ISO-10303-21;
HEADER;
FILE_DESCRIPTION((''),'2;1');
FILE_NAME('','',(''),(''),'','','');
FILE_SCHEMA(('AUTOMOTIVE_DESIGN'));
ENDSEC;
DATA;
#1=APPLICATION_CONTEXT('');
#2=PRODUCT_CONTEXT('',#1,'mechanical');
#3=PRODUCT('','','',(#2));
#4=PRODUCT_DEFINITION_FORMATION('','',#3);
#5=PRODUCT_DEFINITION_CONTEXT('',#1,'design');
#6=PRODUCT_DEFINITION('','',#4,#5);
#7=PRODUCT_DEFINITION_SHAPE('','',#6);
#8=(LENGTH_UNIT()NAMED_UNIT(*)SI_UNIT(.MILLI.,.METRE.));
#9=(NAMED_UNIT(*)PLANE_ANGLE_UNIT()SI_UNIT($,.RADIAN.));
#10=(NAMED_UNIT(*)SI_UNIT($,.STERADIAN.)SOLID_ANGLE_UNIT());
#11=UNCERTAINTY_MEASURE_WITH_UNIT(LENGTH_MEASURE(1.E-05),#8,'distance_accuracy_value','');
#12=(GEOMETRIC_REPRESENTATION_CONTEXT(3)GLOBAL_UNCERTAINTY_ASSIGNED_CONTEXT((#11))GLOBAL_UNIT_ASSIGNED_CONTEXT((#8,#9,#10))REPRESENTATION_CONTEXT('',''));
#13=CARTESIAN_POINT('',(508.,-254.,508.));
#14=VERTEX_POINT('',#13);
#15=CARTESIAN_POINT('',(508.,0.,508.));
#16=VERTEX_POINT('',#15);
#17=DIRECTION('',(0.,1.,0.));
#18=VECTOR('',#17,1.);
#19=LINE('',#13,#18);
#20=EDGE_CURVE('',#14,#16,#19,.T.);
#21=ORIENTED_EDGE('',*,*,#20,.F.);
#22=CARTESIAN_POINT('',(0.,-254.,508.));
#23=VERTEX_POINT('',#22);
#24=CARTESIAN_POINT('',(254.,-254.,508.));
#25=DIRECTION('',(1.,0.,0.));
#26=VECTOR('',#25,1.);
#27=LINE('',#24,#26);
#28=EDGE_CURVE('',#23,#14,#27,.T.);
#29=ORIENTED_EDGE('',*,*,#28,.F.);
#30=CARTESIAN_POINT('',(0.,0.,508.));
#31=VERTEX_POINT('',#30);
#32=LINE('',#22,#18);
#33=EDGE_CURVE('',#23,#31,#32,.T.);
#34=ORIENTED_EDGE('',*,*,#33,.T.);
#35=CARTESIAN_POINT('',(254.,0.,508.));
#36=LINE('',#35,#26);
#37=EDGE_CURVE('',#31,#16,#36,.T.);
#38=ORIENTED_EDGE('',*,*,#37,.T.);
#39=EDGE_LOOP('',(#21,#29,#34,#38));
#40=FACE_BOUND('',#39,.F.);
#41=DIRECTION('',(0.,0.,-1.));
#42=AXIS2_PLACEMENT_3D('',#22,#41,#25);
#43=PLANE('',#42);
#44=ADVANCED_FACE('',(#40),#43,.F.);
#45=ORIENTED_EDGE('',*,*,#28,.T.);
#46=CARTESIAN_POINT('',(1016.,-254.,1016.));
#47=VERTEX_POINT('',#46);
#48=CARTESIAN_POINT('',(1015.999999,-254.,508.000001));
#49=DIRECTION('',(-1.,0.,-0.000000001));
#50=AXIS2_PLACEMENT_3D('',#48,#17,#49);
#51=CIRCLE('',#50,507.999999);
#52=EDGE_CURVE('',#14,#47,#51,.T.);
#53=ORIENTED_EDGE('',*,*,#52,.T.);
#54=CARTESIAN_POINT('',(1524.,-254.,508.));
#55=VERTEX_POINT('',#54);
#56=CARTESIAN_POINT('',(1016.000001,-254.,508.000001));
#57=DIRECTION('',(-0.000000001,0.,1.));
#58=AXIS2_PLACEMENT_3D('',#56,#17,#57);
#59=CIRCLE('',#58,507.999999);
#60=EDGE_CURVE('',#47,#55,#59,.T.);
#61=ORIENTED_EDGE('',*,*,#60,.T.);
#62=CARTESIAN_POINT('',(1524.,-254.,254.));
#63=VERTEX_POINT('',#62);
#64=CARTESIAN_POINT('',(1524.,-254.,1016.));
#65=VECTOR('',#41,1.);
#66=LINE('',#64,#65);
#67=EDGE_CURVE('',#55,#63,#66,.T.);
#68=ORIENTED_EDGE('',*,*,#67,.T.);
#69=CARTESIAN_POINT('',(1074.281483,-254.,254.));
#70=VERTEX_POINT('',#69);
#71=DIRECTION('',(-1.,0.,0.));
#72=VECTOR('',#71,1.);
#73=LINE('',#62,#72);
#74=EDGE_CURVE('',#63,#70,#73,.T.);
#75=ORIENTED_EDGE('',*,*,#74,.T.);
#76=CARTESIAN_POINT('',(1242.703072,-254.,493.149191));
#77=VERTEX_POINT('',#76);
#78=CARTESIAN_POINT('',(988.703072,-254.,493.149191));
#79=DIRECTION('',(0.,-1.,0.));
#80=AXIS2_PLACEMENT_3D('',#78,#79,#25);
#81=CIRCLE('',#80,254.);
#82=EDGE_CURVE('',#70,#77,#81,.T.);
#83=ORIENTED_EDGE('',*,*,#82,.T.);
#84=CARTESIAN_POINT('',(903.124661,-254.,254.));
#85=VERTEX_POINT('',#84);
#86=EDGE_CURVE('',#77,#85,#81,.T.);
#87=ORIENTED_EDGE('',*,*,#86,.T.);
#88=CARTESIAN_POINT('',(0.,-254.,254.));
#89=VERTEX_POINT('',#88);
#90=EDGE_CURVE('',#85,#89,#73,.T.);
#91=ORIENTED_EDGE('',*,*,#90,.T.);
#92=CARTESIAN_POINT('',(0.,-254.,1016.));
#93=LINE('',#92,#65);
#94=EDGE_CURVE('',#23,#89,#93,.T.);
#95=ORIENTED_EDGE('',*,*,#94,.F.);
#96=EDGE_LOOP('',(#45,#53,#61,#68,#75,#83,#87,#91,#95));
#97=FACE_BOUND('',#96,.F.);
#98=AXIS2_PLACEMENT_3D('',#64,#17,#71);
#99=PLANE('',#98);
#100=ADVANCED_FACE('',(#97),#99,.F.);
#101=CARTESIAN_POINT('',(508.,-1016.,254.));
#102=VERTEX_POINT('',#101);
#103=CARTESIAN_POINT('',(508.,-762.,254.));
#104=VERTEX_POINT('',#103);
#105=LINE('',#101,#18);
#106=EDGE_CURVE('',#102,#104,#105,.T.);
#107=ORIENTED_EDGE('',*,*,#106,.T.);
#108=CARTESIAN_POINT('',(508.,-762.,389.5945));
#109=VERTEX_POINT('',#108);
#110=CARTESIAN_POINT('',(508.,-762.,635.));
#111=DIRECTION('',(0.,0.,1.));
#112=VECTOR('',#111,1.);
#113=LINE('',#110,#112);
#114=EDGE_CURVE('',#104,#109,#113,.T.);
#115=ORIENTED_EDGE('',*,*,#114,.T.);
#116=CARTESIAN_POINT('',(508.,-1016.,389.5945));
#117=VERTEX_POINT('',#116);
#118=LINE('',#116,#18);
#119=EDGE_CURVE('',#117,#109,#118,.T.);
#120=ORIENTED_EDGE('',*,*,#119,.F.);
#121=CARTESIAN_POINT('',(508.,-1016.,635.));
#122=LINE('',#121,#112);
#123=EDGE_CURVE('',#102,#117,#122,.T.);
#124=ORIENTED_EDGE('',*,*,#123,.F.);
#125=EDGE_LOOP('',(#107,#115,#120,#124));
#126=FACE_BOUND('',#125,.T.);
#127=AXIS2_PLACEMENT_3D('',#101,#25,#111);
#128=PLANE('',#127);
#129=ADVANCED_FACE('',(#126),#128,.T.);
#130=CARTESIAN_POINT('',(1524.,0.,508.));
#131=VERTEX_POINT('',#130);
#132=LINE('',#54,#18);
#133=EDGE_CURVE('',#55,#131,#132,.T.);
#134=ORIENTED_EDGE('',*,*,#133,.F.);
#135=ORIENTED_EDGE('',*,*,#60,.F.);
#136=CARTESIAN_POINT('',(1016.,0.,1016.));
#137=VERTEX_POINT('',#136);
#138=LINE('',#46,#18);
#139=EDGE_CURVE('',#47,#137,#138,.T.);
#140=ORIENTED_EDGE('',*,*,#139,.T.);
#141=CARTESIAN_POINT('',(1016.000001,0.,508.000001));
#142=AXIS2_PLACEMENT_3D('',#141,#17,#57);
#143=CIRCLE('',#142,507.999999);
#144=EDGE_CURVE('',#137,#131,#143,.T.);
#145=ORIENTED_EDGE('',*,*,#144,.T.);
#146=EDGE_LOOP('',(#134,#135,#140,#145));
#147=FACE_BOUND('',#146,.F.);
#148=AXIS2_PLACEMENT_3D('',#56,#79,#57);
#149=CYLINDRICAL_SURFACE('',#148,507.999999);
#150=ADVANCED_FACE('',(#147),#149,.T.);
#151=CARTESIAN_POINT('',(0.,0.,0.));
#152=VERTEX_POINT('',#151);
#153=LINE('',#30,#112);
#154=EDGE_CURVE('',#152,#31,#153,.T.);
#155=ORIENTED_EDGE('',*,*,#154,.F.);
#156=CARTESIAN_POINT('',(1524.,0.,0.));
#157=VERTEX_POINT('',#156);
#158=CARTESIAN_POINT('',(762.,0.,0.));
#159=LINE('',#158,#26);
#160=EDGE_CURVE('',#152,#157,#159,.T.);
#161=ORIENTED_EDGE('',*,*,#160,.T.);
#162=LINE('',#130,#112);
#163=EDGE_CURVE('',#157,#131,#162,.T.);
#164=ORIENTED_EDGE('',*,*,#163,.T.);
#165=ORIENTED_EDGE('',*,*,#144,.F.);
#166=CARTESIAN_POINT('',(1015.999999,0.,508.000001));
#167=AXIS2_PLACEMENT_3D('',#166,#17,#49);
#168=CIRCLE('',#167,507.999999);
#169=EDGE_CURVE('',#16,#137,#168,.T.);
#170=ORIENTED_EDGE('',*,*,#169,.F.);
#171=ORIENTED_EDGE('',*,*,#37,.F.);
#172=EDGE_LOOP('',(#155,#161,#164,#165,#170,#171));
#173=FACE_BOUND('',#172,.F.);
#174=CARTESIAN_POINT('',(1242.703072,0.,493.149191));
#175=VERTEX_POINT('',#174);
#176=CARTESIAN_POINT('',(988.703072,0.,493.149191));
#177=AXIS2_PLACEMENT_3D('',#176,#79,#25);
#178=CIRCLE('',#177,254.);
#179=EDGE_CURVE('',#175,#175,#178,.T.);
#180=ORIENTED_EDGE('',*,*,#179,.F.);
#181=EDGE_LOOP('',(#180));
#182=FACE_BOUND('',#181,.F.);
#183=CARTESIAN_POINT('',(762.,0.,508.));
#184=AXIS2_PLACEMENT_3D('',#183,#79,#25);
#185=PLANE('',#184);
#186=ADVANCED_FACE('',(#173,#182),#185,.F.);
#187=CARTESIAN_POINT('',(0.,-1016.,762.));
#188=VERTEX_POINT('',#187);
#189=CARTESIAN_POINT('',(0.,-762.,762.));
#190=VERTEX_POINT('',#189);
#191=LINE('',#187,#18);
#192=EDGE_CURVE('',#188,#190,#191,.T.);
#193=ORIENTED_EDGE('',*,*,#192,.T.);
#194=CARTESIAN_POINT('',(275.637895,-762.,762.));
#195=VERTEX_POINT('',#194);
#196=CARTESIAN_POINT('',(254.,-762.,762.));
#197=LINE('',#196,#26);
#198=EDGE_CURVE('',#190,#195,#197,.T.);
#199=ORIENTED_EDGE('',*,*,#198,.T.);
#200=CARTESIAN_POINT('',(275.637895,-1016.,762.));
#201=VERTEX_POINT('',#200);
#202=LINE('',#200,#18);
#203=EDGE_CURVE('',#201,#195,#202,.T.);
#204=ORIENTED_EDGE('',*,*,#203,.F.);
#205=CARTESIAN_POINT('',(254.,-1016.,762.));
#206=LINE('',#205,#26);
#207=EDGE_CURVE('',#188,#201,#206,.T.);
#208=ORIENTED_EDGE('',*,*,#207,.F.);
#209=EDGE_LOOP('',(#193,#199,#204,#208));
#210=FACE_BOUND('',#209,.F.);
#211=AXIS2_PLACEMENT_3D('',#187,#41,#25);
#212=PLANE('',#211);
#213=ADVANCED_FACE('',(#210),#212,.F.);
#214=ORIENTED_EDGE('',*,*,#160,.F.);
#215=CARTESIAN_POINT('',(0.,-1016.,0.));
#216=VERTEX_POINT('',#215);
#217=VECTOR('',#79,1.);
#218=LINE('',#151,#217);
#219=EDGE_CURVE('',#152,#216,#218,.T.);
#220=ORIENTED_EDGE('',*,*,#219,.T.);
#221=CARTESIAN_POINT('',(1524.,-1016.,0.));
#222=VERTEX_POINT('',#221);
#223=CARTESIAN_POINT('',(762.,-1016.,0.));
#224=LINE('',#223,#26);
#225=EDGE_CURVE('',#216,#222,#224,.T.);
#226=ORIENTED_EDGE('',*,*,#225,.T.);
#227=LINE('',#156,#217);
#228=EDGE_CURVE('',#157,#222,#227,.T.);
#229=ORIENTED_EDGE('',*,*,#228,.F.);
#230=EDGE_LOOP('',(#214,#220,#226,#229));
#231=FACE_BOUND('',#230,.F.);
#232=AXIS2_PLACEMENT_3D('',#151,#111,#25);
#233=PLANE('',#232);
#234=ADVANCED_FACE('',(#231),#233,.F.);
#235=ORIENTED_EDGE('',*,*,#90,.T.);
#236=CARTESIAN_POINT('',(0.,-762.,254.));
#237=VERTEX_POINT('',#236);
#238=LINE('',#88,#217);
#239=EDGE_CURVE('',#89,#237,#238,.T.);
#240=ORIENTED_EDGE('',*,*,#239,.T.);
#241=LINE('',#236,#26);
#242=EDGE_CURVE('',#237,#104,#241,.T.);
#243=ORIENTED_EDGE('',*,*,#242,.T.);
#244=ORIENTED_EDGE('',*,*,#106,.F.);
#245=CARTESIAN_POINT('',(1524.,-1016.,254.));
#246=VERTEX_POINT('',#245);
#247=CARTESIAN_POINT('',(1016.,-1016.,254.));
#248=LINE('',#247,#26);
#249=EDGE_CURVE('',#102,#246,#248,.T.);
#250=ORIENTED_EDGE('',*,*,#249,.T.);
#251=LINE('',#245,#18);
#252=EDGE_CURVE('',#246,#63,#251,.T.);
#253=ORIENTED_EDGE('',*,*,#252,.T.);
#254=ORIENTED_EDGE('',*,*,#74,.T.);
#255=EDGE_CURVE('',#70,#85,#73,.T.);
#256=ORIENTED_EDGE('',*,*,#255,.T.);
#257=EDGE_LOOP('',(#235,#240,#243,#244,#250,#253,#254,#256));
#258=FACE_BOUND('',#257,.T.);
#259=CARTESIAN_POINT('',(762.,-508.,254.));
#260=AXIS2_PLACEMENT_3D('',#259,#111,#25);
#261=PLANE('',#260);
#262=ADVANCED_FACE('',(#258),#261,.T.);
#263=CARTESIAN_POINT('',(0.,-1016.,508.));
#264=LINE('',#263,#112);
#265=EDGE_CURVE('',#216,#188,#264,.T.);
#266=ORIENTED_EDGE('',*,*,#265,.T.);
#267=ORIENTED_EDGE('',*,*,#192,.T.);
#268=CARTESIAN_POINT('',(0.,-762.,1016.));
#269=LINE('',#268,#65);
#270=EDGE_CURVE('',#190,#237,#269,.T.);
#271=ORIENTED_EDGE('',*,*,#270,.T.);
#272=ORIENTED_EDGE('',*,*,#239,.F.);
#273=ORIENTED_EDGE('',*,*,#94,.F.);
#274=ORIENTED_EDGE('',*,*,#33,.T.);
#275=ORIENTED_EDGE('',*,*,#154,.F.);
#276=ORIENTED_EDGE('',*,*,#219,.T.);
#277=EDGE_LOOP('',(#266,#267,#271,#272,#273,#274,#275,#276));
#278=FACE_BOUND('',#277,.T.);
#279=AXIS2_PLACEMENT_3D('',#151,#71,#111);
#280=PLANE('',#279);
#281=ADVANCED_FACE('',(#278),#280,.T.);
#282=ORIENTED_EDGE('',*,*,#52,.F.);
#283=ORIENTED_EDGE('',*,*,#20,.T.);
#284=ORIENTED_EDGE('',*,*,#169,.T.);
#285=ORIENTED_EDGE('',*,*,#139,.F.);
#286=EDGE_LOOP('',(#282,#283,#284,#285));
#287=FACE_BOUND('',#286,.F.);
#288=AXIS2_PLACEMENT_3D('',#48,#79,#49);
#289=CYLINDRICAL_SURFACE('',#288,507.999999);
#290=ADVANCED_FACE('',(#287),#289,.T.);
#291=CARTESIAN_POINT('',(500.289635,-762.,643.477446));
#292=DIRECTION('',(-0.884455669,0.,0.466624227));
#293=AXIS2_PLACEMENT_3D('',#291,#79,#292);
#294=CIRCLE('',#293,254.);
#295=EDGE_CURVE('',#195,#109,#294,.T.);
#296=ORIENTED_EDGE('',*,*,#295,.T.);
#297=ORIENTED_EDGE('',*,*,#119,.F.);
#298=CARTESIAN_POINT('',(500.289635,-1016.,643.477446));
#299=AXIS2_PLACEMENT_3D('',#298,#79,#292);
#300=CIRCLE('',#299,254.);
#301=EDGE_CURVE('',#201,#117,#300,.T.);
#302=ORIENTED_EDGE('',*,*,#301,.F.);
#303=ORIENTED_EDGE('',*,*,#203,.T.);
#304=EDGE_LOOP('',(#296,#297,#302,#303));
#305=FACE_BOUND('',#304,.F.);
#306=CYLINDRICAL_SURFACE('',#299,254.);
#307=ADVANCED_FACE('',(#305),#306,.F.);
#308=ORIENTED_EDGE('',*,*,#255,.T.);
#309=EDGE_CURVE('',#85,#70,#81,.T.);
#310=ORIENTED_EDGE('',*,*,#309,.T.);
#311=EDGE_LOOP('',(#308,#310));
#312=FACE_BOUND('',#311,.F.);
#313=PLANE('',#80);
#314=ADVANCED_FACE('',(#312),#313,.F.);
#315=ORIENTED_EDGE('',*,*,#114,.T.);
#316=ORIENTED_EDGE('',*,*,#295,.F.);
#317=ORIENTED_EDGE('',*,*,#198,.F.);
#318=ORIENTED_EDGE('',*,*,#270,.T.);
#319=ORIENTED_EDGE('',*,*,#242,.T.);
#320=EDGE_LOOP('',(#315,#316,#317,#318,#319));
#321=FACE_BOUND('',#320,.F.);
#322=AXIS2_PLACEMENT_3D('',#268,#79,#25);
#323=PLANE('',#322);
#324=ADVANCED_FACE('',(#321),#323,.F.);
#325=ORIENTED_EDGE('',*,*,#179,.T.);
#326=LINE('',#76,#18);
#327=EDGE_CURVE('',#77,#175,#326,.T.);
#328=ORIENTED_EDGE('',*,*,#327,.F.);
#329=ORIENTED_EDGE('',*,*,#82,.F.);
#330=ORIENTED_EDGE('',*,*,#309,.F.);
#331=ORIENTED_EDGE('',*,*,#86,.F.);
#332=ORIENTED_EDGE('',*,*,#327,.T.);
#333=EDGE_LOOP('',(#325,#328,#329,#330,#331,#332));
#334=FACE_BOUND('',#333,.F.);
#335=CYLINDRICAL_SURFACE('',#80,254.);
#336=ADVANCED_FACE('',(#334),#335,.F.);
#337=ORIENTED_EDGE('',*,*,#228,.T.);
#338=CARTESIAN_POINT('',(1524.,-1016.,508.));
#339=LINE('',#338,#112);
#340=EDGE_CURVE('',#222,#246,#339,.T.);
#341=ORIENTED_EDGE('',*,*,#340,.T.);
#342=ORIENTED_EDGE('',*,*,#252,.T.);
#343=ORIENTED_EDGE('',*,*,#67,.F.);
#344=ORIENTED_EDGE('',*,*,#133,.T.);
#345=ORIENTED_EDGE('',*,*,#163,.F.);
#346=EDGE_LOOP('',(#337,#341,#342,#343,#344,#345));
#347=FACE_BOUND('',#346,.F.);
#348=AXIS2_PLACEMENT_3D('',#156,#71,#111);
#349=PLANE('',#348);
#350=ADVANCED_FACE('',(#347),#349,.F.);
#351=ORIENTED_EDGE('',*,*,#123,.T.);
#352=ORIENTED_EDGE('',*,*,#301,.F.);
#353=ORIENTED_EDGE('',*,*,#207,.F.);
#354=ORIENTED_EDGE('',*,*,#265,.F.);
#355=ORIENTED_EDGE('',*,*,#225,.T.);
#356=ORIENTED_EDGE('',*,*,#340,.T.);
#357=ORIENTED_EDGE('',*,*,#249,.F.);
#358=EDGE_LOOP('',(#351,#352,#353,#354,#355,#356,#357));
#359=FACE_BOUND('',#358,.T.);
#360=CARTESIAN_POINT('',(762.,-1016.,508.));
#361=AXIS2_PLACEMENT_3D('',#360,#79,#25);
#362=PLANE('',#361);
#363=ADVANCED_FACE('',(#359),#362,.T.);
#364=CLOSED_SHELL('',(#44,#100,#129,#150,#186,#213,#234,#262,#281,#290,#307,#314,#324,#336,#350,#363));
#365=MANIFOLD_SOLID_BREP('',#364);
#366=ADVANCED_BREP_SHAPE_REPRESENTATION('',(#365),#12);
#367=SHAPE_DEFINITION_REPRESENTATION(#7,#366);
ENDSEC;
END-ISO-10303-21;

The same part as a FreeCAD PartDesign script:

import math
import FreeCAD as App
import Part
import Sketcher
Q = App.Units.Quantity


def add_polygon(sketch, points):
    """Adds a closed chain of lines whose ends are joined by coincident constraints."""
    first, n = sketch.GeometryCount, len(points)
    for a, b in zip(points, points[1:] + points[:1]):
        sketch.addGeometry(Part.LineSegment(App.Vector(*a, 0), App.Vector(*b, 0)), False)
    for i in range(n):
        sketch.addConstraint(Sketcher.Constraint("Coincident", first + i, 2, first + (i + 1) % n, 1))

doc = App.newDocument("Part")
body = doc.addObject("PartDesign::Body", "Body")

# Sketch on XZ plane
sketch1 = body.newObject("Sketcher::SketchObject", "Sketch")
sketch1.AttachmentSupport = (doc.getObject("XZ_Plane"), [""])
sketch1.MapMode = "FlatFace"
add_polygon(sketch1, [(0, 1016), (0, 0), (1524, 0), (1524, 1016)])  # lines 0-3
sketch1.addConstraint([
    Sketcher.Constraint("Vertical", 0),
    Sketcher.Constraint("Horizontal", 1),
    Sketcher.Constraint("Vertical", 2),
    Sketcher.Constraint("Horizontal", 3),
    Sketcher.Constraint("Coincident", 0, 2, -1, 1),
    Sketcher.Constraint("DistanceX", 1, 1, 1, 2, Q("60 in")),
    Sketcher.Constraint("DistanceY", 0, 2, 0, 1, Q("40 in")),
])
pad1 = body.newObject("PartDesign::Pad", "Pad")
pad1.Profile = sketch1
pad1.Length = Q("40 in")

# Sketch on XZ plane
sketch2 = body.newObject("Sketcher::SketchObject", "Sketch001")
sketch2.AttachmentSupport = (doc.getObject("XZ_Plane"), [""])
sketch2.MapMode = "FlatFace"
sketch2.AttachmentOffset = App.Placement(App.Vector(0, 0, 40 * 25.4), App.Rotation())
add_polygon(sketch2, [(508, 1016), (508, 254), (1524, 254), (1524, 1016)])  # lines 0-3
sketch2.addConstraint([
    Sketcher.Constraint("Vertical", 0),
    Sketcher.Constraint("Horizontal", 1),
    Sketcher.Constraint("Vertical", 2),
    Sketcher.Constraint("Horizontal", 3),
    Sketcher.Constraint("DistanceX", 1, 1, 1, 2, Q("40 in")),
    Sketcher.Constraint("DistanceY", 0, 2, 0, 1, Q("30 in")),
    Sketcher.Constraint("DistanceX", -1, 1, 0, 2, Q("20 in")),
    Sketcher.Constraint("DistanceY", -1, 1, 0, 2, Q("10 in")),
])
pocket1 = body.newObject("PartDesign::Pocket", "Pocket")
pocket1.Profile = sketch2
pocket1.Length = Q("10 in")

# Sketch on XY plane
sketch3 = body.newObject("Sketcher::SketchObject", "Sketch002")
sketch3.AttachmentSupport = (doc.getObject("XY_Plane"), [""])
sketch3.MapMode = "FlatFace"
sketch3.AttachmentOffset = App.Placement(App.Vector(0, 0, 40 * 25.4), App.Rotation())
add_polygon(sketch3, [(0, -762), (1524, -762), (1524, -254), (0, -254)])  # lines 0-3
sketch3.addConstraint([
    Sketcher.Constraint("Horizontal", 0),
    Sketcher.Constraint("Vertical", 1),
    Sketcher.Constraint("Horizontal", 2),
    Sketcher.Constraint("Vertical", 3),
    Sketcher.Constraint("PointOnObject", 2, 2, -2),
    Sketcher.Constraint("DistanceX", 0, 1, 0, 2, Q("60 in")),
    Sketcher.Constraint("DistanceY", 1, 1, 1, 2, Q("20 in")),
    Sketcher.Constraint("DistanceY", 0, 2, -1, 1, Q("30 in")),
])
pocket2 = body.newObject("PartDesign::Pocket", "Pocket001")
pocket2.Profile = sketch3
pocket2.Length = Q("30 in")

# Sketch on XZ plane
sketch4 = body.newObject("Sketcher::SketchObject", "Sketch003")
sketch4.AttachmentSupport = (doc.getObject("XZ_Plane"), [""])
sketch4.MapMode = "FlatFace"
sketch4.AttachmentOffset = App.Placement(App.Vector(0, 0, 40 * 25.4), App.Rotation())
add_polygon(sketch4, [(0, 1016), (0, 762), (508, 762), (508, 1016)])  # lines 0-3
sketch4.addConstraint([
    Sketcher.Constraint("Vertical", 0),
    Sketcher.Constraint("Horizontal", 1),
    Sketcher.Constraint("Vertical", 2),
    Sketcher.Constraint("Horizontal", 3),
    Sketcher.Constraint("PointOnObject", 0, 2, -2),
    Sketcher.Constraint("DistanceX", 1, 1, 1, 2, Q("20 in")),
    Sketcher.Constraint("DistanceY", 0, 2, 0, 1, Q("10 in")),
    Sketcher.Constraint("DistanceY", -1, 1, 0, 2, Q("30 in")),
])
pocket3 = body.newObject("PartDesign::Pocket", "Pocket002")
pocket3.Profile = sketch4
pocket3.Length = Q("10 in")

# Sketch on XZ plane
sketch5 = body.newObject("Sketcher::SketchObject", "Sketch004")
sketch5.AttachmentSupport = (doc.getObject("XZ_Plane"), [""])
sketch5.MapMode = "FlatFace"
sketch5.AttachmentOffset = App.Placement(App.Vector(0, 0, 10 * 25.4), App.Rotation())
add_polygon(sketch5, [(0, 1016), (0, 508), (508, 508), (508, 1016)])  # lines 0-3
sketch5.addConstraint([
    Sketcher.Constraint("Vertical", 0),
    Sketcher.Constraint("Horizontal", 1),
    Sketcher.Constraint("Vertical", 2),
    Sketcher.Constraint("Horizontal", 3),
    Sketcher.Constraint("PointOnObject", 0, 2, -2),
    Sketcher.Constraint("Equal", 3, 0),
    Sketcher.Constraint("DistanceX", 1, 1, 1, 2, Q("20 in")),
    Sketcher.Constraint("DistanceY", -1, 1, 0, 2, Q("20 in")),
])
pocket4 = body.newObject("PartDesign::Pocket", "Pocket003")
pocket4.Profile = sketch5
pocket4.Length = Q("10 in")

# Sketch on XZ plane
sketch6 = body.newObject("Sketcher::SketchObject", "Sketch005")
sketch6.AttachmentSupport = (doc.getObject("XZ_Plane"), [""])
sketch6.MapMode = "FlatFace"
sketch6.AttachmentOffset = App.Placement(App.Vector(0, 0, 10 * 25.4), App.Rotation())
sketch6.addGeometry([
    Part.LineSegment(App.Vector(1524, 1016, 0), App.Vector(1016, 1016, 0)),  # 0
    Part.ArcOfCircle(Part.Circle(App.Vector(1016, 508, 0), App.Vector(0, 0, 1), 508), math.radians(0), math.radians(90)),  # 1
    Part.LineSegment(App.Vector(1524, 508, 0), App.Vector(1524, 1016, 0)),  # 2
    Part.LineSegment(App.Vector(508, 1016, 0), App.Vector(508, 508, 0)),  # 3
    Part.ArcOfCircle(Part.Circle(App.Vector(1016, 508, 0), App.Vector(0, 0, 1), 508), math.radians(90), math.radians(180)),  # 4
    Part.LineSegment(App.Vector(1016, 1016, 0), App.Vector(508, 1016, 0)),  # 5
], False)
sketch6.addConstraint([
    Sketcher.Constraint("Tangent", 0, 2, 1, 2),
    Sketcher.Constraint("Tangent", 1, 1, 2, 1),
    Sketcher.Constraint("Coincident", 2, 2, 0, 1),
    Sketcher.Constraint("Tangent", 3, 2, 4, 2),
    Sketcher.Constraint("Tangent", 4, 1, 5, 1),
    Sketcher.Constraint("Coincident", 5, 2, 3, 1),
    Sketcher.Constraint("Horizontal", 0),
    Sketcher.Constraint("Vertical", 2),
    Sketcher.Constraint("Vertical", 3),
    Sketcher.Constraint("Horizontal", 5),
    Sketcher.Constraint("Coincident", 4, 3, 1, 3),
    Sketcher.Constraint("Equal", 1, 4),
    Sketcher.Constraint("Radius", 1, Q("20 in")),
    Sketcher.Constraint("DistanceX", -1, 1, 1, 3, Q("40 in")),
    Sketcher.Constraint("DistanceY", -1, 1, 1, 3, Q("20 in")),
])
pocket5 = body.newObject("PartDesign::Pocket", "Pocket004")
pocket5.Profile = sketch6
pocket5.Length = Q("10 in")

# Sketch on XZ plane
sketch7 = body.newObject("Sketcher::SketchObject", "Sketch006")
sketch7.AttachmentSupport = (doc.getObject("XZ_Plane"), [""])
sketch7.MapMode = "FlatFace"
sketch7.AttachmentOffset = App.Placement(App.Vector(0, 0, 10 * 25.4), App.Rotation())
sketch7.addGeometry(Part.Circle(App.Vector(989, 493, 0), App.Vector(0, 0, 1), 254), False)
sketch7.addConstraint([
    Sketcher.Constraint("Diameter", 0, Q("20 in")),
    Sketcher.Constraint("DistanceX", -1, 1, 0, 3, 988.703072),
    Sketcher.Constraint("DistanceY", -1, 1, 0, 3, 493.149191),
])
pocket6 = body.newObject("PartDesign::Pocket", "Pocket005")
pocket6.Profile = sketch7
pocket6.Length = Q("10 in")

# Sketch on XZ plane
sketch8 = body.newObject("Sketcher::SketchObject", "Sketch007")
sketch8.AttachmentSupport = (doc.getObject("XZ_Plane"), [""])
sketch8.MapMode = "FlatFace"
sketch8.AttachmentOffset = App.Placement(App.Vector(0, 0, 40 * 25.4), App.Rotation())
sketch8.addGeometry([
    Part.LineSegment(App.Vector(508, 762, 0), App.Vector(276, 762, 0)),
    Part.ArcOfCircle(Part.Circle(App.Vector(500, 643, 0), App.Vector(0, 0, 1), 254), math.radians(152), math.radians(272)),
    Part.LineSegment(App.Vector(508, 390, 0), App.Vector(508, 762, 0)),
], False)
sketch8.addConstraint([
    Sketcher.Constraint("Coincident", 0, 2, 1, 1),
    Sketcher.Constraint("Coincident", 1, 2, 2, 1),
    Sketcher.Constraint("Coincident", 2, 2, 0, 1),
    Sketcher.Constraint("Horizontal", 0),
    Sketcher.Constraint("Vertical", 2),
    Sketcher.Constraint("Radius", 1, Q("10 in")),
    Sketcher.Constraint("DistanceY", -1, 1, 0, 2, Q("30 in")),
    Sketcher.Constraint("DistanceX", -1, 1, 1, 2, Q("20 in")),
    Sketcher.Constraint("DistanceY", 2, 1, 2, 2, 372.4055),
    Sketcher.Constraint("DistanceX", 0, 2, 0, 1, 232.362105),
])
pocket7 = body.newObject("PartDesign::Pocket", "Pocket006")
pocket7.Profile = sketch8
pocket7.Length = Q("10 in")

doc.recompute()
